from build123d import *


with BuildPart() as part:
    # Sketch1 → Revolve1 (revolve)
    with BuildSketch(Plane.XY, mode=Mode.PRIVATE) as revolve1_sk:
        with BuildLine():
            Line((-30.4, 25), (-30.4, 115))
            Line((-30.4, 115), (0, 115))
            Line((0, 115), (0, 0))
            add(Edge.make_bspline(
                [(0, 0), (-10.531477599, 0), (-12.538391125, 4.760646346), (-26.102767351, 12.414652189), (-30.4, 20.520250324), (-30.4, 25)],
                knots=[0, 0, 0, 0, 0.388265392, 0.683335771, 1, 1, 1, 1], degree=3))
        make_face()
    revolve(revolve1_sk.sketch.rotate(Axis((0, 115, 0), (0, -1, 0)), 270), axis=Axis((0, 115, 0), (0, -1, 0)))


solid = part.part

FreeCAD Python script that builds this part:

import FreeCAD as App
import Part
import Sketcher
from FreeCAD import Vector

doc = App.newDocument("Part")
body = doc.addObject("PartDesign::Body", "Body")

# Sketch on XY plane
sketch1 = doc.addObject("Sketcher::SketchObject", "Sketch")
body.addObject(sketch1)
sketch1.AttachmentSupport = (doc.XY_Plane, [""])
sketch1.MapMode = "FlatFace"
sketch1.addGeometry(Part.LineSegment(Vector(-30.4, 115, 0), Vector(-30.4, 25, 0)), False)
sketch1.addGeometry(Part.BSplineCurve([Vector(0, 0, 0), Vector(-10.531478, 0, 0), Vector(-12.538391, 4.760646, 0), Vector(-26.102767, 12.414652, 0), Vector(-30.4, 20.52025, 0), Vector(-30.4, 25, 0)], [4, 1, 1, 4], [0, 0.388265392, 0.683335771, 1], False, 3, [1, 1, 1, 1, 1, 1], False), False)
sketch1.addGeometry(Part.LineSegment(Vector(0, 0, 0), Vector(0, 115, 0)), False)
sketch1.addGeometry(Part.LineSegment(Vector(0, 115, 0), Vector(-30.4, 115, 0)), False)
sketch1.addConstraint(Sketcher.Constraint("Block", 1))
sketch1.addConstraint(Sketcher.Constraint("Coincident", 0, 2, 1, 2))
sketch1.addConstraint(Sketcher.Constraint("Coincident", 1, 1, 2, 1))
sketch1.addConstraint(Sketcher.Constraint("Coincident", 2, 2, 3, 1))
sketch1.addConstraint(Sketcher.Constraint("Coincident", 3, 2, 0, 1))
sketch1.addConstraint(Sketcher.Constraint("Vertical", 0))
sketch1.addConstraint(Sketcher.Constraint("Vertical", 2))
sketch1.addConstraint(Sketcher.Constraint("Horizontal", 3))
sketch1.addConstraint(Sketcher.Constraint("DistanceY", 0, 2, 0, 1, 90.0))
revolution = doc.addObject("PartDesign::Revolution", "Revolution")
body.addObject(revolution)
revolution.Profile = sketch1
revolution.ReferenceAxis = (sketch1, ["V_Axis"])
revolution.Angle = 360

doc.recompute()
